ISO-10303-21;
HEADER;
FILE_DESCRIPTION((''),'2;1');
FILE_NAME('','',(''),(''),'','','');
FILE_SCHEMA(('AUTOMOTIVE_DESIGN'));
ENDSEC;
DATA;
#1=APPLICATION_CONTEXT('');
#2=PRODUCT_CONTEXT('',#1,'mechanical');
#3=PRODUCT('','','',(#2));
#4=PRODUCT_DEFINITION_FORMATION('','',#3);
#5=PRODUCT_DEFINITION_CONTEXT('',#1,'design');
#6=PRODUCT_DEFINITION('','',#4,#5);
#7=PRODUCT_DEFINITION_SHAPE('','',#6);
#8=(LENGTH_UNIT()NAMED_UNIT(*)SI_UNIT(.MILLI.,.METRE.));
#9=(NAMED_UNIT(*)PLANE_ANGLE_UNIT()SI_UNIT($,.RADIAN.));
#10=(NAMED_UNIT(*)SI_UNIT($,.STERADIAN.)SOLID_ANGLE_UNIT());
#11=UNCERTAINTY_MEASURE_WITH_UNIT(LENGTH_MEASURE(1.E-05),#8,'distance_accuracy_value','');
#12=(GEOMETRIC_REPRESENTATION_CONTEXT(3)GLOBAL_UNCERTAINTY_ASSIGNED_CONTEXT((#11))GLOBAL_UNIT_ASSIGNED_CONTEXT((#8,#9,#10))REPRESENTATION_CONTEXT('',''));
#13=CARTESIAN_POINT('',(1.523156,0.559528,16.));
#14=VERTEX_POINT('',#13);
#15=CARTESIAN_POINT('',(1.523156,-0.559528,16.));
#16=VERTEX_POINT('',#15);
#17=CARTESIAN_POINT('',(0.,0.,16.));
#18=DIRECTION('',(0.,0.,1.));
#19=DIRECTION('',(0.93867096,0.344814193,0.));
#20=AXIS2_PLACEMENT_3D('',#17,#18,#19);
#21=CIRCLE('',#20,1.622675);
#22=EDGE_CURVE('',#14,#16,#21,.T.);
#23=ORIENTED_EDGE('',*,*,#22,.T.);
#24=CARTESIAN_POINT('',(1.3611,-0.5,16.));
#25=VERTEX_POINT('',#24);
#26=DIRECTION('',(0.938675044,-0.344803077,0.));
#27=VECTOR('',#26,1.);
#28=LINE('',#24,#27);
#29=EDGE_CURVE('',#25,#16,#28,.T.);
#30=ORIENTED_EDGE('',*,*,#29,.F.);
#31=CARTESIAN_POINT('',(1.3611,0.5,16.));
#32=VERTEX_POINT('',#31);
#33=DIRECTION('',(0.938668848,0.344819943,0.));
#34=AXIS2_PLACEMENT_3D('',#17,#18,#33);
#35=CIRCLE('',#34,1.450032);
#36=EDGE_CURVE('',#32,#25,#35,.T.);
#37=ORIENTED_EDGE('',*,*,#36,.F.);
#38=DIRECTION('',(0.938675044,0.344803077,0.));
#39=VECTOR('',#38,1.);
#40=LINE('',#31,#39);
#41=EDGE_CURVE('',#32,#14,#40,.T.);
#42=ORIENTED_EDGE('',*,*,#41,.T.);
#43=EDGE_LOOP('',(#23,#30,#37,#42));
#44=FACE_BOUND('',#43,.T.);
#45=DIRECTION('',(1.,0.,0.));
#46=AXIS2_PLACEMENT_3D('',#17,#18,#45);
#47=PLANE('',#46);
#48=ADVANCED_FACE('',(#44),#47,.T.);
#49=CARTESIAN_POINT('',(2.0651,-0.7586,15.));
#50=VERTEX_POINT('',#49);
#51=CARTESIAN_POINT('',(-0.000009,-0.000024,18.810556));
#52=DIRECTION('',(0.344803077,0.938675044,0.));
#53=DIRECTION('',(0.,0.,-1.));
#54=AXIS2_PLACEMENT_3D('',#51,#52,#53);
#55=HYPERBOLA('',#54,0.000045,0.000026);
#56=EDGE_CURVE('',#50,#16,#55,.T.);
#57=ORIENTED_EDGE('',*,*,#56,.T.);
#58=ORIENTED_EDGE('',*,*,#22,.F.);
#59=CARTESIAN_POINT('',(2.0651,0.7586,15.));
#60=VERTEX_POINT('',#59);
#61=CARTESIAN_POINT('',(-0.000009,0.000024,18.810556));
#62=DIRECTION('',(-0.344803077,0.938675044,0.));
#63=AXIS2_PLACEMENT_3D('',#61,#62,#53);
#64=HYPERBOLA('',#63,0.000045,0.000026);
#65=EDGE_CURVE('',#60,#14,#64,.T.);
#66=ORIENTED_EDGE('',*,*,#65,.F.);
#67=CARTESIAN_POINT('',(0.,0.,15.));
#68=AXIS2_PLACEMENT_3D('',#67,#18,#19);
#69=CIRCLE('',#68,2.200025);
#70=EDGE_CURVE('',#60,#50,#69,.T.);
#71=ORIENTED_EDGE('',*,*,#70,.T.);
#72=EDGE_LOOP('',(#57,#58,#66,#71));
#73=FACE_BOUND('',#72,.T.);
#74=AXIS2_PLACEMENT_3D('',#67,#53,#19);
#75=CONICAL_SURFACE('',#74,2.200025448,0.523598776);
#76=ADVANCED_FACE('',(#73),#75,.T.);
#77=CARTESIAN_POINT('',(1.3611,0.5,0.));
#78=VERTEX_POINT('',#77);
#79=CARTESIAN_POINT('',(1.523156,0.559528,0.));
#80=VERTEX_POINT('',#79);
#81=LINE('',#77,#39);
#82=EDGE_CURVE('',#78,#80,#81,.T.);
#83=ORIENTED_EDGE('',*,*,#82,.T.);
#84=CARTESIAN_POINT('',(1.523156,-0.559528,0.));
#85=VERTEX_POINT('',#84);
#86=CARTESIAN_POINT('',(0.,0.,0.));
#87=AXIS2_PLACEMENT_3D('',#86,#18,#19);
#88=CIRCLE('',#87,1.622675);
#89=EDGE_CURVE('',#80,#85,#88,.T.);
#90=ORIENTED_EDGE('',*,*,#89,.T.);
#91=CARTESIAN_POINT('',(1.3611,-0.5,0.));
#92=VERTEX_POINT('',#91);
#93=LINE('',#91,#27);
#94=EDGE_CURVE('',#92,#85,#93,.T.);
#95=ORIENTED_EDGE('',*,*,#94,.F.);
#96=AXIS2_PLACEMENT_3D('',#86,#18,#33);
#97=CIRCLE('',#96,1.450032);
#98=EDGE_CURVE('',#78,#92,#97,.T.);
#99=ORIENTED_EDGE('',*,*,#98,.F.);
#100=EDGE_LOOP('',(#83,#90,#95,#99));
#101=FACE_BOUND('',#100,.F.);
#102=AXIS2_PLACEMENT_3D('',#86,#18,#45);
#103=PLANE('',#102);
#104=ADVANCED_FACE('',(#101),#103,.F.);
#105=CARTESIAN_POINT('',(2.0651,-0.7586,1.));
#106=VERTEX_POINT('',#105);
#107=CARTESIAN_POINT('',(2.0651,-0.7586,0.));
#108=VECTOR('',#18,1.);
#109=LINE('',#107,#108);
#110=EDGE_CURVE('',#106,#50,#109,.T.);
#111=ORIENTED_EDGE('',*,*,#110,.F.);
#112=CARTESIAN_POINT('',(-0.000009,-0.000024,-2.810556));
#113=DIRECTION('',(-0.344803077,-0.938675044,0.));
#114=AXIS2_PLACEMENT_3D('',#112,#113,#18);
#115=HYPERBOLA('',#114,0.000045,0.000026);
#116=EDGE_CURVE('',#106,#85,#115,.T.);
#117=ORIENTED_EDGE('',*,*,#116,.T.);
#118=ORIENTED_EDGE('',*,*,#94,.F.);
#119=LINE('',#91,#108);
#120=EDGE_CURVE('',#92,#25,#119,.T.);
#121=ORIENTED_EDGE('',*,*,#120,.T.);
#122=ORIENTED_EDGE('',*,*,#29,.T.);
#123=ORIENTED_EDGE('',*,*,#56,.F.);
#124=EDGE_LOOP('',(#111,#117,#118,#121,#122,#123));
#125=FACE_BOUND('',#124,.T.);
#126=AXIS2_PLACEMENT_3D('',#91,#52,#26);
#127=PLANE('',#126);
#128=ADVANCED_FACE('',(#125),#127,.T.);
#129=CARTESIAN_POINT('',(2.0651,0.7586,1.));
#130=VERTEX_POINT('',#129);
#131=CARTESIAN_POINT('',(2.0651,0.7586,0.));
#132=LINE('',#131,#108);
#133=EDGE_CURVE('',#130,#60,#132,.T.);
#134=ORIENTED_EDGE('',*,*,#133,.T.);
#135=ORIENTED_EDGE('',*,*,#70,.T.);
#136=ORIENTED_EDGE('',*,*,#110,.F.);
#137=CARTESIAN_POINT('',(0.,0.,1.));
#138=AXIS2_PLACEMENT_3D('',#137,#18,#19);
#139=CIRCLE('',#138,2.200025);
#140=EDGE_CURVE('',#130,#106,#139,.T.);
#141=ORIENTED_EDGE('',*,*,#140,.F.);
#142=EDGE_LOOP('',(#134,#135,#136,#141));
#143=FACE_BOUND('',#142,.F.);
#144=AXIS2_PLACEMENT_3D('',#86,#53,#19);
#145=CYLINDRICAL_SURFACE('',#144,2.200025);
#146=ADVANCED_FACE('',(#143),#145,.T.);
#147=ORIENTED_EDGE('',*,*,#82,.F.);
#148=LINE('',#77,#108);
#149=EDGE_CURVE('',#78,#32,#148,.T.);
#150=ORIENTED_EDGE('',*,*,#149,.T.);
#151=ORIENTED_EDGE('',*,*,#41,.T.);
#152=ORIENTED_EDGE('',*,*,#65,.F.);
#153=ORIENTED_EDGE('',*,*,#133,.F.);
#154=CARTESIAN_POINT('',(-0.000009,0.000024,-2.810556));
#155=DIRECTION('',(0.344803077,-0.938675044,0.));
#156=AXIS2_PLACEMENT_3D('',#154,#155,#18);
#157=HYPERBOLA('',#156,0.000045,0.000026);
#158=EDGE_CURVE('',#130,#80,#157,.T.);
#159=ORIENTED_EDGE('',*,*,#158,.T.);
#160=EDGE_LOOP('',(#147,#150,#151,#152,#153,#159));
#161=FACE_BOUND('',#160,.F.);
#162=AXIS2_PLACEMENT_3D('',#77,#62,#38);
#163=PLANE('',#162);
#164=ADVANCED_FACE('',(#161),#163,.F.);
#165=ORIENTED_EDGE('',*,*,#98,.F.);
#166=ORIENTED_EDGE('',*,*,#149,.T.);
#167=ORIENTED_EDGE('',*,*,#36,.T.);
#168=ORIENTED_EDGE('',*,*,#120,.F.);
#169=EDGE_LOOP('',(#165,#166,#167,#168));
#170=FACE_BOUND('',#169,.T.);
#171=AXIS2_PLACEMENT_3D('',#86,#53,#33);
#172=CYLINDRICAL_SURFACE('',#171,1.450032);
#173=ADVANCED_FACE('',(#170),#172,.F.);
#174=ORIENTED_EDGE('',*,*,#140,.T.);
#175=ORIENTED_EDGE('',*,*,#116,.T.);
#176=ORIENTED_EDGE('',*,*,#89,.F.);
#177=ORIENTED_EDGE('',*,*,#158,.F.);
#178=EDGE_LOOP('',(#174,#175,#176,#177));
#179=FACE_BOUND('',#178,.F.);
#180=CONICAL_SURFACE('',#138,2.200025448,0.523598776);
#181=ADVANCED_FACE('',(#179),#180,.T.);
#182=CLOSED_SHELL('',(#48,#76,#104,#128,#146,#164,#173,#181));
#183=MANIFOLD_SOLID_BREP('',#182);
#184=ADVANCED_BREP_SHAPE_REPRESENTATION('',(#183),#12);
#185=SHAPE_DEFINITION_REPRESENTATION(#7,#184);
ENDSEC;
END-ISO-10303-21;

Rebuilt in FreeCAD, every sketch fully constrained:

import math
import FreeCAD as App
import Part
import Sketcher

V = App.Vector
Q = App.Units.Quantity


def edges_at(feature, points):
    """Names of the edges that pass closest to the given points."""
    edges = feature.Shape.Edges
    near = lambda p: min(range(len(edges)), key=lambda i: edges[i].distToShape(Part.Vertex(*p))[0])
    return sorted({f"Edge{near(p) + 1}" for p in points})

doc = App.newDocument("Part")
body = doc.addObject("PartDesign::Body", "Body")

sketch1 = body.newObject("Sketcher::SketchObject", "Sketch")
sketch1.AttachmentSupport = (doc.getObject("XY_Plane"), [""])
sketch1.MapMode = "FlatFace"
sketch1.addGeometry(Part.LineSegment(V(1.3611, 0.5, 0), V(2.0651, 0.7586, 0)), False)
sketch1.addGeometry(Part.ArcOfCircle(Part.Circle(V(0, 0, 0), V(0, 0, 1), 2.200025), math.radians(20.170454), math.radians(339.829546)), False)
sketch1.addGeometry(Part.LineSegment(V(2.0651, -0.7586, 0), V(1.3611, -0.5, 0)), False)
sketch1.addGeometry(Part.ArcOfCircle(Part.Circle(V(0, 0, 0), V(0, 0, 1), 1.450032), math.radians(20.170805), math.radians(339.829195)), False)
sketch1.addConstraint(Sketcher.Constraint("Coincident", 0, 2, 1, 1))
sketch1.addConstraint(Sketcher.Constraint("Coincident", 1, 2, 2, 1))
sketch1.addConstraint(Sketcher.Constraint("Coincident", 2, 2, 3, 2))
sketch1.addConstraint(Sketcher.Constraint("Coincident", 3, 1, 0, 1))
sketch1.addConstraint(Sketcher.Constraint("Coincident", 1, 3, -1, 1))
sketch1.addConstraint(Sketcher.Constraint("Coincident", 3, 3, -1, 1))
sketch1.addConstraint(Sketcher.Constraint("Vertical", 0, 2, 1, 2))
sketch1.addConstraint(Sketcher.Constraint("Vertical", 2, 2, 3, 1))
sketch1.addConstraint(Sketcher.Constraint("Radius", 1, Q("2.2 mm")))
sketch1.addConstraint(Sketcher.Constraint("Radius", 3, Q("1.45 mm")))
sketch1.addConstraint(Sketcher.Constraint("DistanceY", 2, 2, 3, 1, Q("1 mm")))
sketch1.addConstraint(Sketcher.Constraint("Angle", 0, Q("20.1698 deg")))
pad1 = body.newObject("PartDesign::Pad", "Pad")
pad1.Profile = sketch1
pad1.Length = 16
doc.recompute()

chamfer = body.newObject("PartDesign::Chamfer", "Chamfer")
chamfer.Base = (pad1, edges_at(pad1, [(-2.2, 0, 16), (-2.2, 0, 0)]))
chamfer.ChamferType = "Distance and Angle"
chamfer.Size = 1
chamfer.Angle = 30

doc.recompute()
